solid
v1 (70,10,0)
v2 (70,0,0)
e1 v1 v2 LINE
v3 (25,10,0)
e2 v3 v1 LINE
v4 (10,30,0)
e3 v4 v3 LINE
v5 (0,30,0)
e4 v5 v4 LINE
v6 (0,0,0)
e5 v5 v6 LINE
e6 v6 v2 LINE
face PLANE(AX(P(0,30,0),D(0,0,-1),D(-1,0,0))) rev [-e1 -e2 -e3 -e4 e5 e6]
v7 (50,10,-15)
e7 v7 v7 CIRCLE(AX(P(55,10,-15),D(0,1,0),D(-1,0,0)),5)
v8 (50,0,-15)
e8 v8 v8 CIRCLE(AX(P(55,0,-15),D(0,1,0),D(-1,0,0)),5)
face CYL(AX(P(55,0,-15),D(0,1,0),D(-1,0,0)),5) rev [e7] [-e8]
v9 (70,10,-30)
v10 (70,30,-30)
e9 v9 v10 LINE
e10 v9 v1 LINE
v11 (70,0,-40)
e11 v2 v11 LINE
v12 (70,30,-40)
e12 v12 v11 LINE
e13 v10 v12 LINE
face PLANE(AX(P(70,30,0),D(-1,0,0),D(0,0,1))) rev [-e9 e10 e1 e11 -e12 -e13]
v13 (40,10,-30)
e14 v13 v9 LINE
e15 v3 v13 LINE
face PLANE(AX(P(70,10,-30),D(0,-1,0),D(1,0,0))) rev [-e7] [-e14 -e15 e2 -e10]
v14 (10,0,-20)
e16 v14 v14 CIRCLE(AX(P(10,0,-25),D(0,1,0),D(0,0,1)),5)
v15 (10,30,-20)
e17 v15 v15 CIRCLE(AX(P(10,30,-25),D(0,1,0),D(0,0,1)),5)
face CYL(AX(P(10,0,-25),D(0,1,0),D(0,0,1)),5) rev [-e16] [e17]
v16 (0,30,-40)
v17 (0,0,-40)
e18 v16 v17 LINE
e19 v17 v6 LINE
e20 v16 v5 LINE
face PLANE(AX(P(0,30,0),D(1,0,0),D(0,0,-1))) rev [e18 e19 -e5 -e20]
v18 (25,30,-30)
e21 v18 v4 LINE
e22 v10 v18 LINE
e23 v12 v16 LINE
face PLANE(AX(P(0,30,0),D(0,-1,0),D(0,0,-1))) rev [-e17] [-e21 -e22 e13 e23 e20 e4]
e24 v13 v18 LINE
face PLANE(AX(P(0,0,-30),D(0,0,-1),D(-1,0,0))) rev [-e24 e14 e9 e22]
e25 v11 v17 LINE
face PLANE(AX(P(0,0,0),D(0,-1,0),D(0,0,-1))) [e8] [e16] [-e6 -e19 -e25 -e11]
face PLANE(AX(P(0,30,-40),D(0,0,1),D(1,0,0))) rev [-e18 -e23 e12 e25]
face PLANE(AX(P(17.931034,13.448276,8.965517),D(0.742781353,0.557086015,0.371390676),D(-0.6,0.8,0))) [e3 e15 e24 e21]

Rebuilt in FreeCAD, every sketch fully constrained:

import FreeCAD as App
import Part
import Sketcher
from FreeCAD import Vector


def add_polygon(sketch, points):
    """Adds a closed chain of lines whose ends are joined by coincident constraints."""
    first, n = sketch.GeometryCount, len(points)
    for a, b in zip(points, points[1:] + points[:1]):
        sketch.addGeometry(Part.LineSegment(App.Vector(*a, 0), App.Vector(*b, 0)), False)
    for i in range(n):
        sketch.addConstraint(Sketcher.Constraint("Coincident", first + i, 2, first + (i + 1) % n, 1))

doc = App.newDocument("Part")
params = doc.addObject("Spreadsheet::Sheet", "Params")
for row, (alias, value) in enumerate([
    ("sketch1_width", "70 mm"),
    ("sketch1_height", "40 mm"),
    ("pad1_length", "30 mm"),
    ("sketch2_width", "30 mm"),
    ("sketch2_height", "20 mm"),
    ("pocket1_length", "30 mm"),
    ("sketch3_height", "25 mm"),
    ("pocket2_length", "36 mm"),
    ("sketch4_width", "15 mm"),
    ("sketch4_height", "20 mm"),
    ("pocket3_length", "49 mm"),
    ("sketch5_width", "15 mm"),
    ("sketch5_height", "30 mm"),
    ("pocket4_length", "21 mm"),
    ("sketch6_diameter", "10 mm"),
    ("sketch7_diameter", "10 mm"),
], start=1):
    params.set(f"A{row}", alias)
    params.set(f"B{row}", "=" + value)
    params.setAlias(f"B{row}", alias)

body = doc.addObject("PartDesign::Body", "Body")

# Sketch on XZ plane
sketch1 = body.newObject("Sketcher::SketchObject", "Sketch")
sketch1.AttachmentSupport = (doc.getObject("XZ_Plane"), [""])
sketch1.MapMode = "FlatFace"
add_polygon(sketch1, [(0, -40), (0, 0), (70, 0), (70, -40)])  # lines 0-3
sketch1.addConstraint([
    Sketcher.Constraint("Vertical", 0),
    Sketcher.Constraint("Horizontal", 1),
    Sketcher.Constraint("Vertical", 2),
    Sketcher.Constraint("Horizontal", 3),
    Sketcher.Constraint("Coincident", 0, 2, -1, 1),
    Sketcher.Constraint("DistanceX", 1, 1, 1, 2, 70.0),
    Sketcher.Constraint("DistanceY", 0, 1, 0, 2, 40.0),
])
sketch1.setExpression("Constraints[9]", "Params.sketch1_width")
sketch1.setExpression("Constraints[10]", "Params.sketch1_height")
pad1 = body.newObject("PartDesign::Pad", "Pad")
pad1.Profile = sketch1
pad1.setExpression("Length", "Params.pad1_length")
pad1.Reversed = True

# Sketch on XY plane
sketch2 = body.newObject("Sketcher::SketchObject", "Sketch001")
sketch2.AttachmentSupport = (doc.getObject("XY_Plane"), [""])
sketch2.MapMode = "FlatFace"
add_polygon(sketch2, [(40, 30), (40, 10), (70, 10), (70, 30)])  # lines 0-3
sketch2.addConstraint([
    Sketcher.Constraint("Vertical", 0),
    Sketcher.Constraint("Horizontal", 1),
    Sketcher.Constraint("Vertical", 2),
    Sketcher.Constraint("Horizontal", 3),
    Sketcher.Constraint("DistanceX", 1, 1, 1, 2, 30.0),
    Sketcher.Constraint("DistanceY", 0, 2, 0, 1, 20.0),
    Sketcher.Constraint("DistanceX", -1, 1, 0, 2, 40.0),
    Sketcher.Constraint("DistanceY", -1, 1, 0, 2, 10.0),
])
sketch2.setExpression("Constraints[8]", "Params.sketch2_width")
sketch2.setExpression("Constraints[9]", "Params.sketch2_height")
pocket1 = body.newObject("PartDesign::Pocket", "Pocket")
pocket1.Profile = sketch2
pocket1.setExpression("Length", "Params.pocket1_length")

# Sketch on an angled plane
sketch3 = body.newObject("Sketcher::SketchObject", "Sketch002")
sketch3.Placement = App.Placement(Vector(17.931034, 13.448276, 8.965517), App.Rotation(Vector(0.297112541, 0.222834406, -0.928476691), Vector(-0.6, 0.8, 0), Vector(0.742781353, 0.557086015, 0.371390676), "ZXY"))
add_polygon(sketch3, [(9.656158, 18), (9.656158, -7), (41.967146, -16), (41.967146, 9)])  # lines 0-3
sketch3.addConstraint([
    Sketcher.Constraint("Vertical", 0),
    Sketcher.Constraint("Vertical", 2),
    Sketcher.Constraint("Parallel", 1, 3),
    Sketcher.Constraint("DistanceY", 0, 2, 0, 1, 25.0),
    Sketcher.Constraint("DistanceY", 0, 2, -1, 1, 7.0),
    Sketcher.Constraint("DistanceY", 1, 2, -1, 1, 16.0),
    Sketcher.Constraint("Distance", 1, 33.54102),
    Sketcher.Constraint("DistanceX", -1, 1, 0, 2, 9.656158),
])
sketch3.setExpression("Constraints[7]", "Params.sketch3_height")
pocket2 = body.newObject("PartDesign::Pocket", "Pocket001")
pocket2.Profile = sketch3
pocket2.setExpression("Length", "Params.pocket2_length")
pocket2.Reversed = True

# Sketch on XY plane
sketch4 = body.newObject("Sketcher::SketchObject", "Sketch003")
sketch4.AttachmentSupport = (doc.getObject("XY_Plane"), [""])
sketch4.MapMode = "FlatFace"
sketch4.AttachmentOffset = App.Placement(Vector(0, 0, -30), App.Rotation())
add_polygon(sketch4, [(25, 30), (40, 10), (40, 30)])  # lines 0-2
sketch4.addConstraint([
    Sketcher.Constraint("Vertical", 1),
    Sketcher.Constraint("Horizontal", 2),
    Sketcher.Constraint("DistanceX", 2, 2, 2, 1, 15.0),
    Sketcher.Constraint("DistanceY", 1, 1, 1, 2, 20.0),
    Sketcher.Constraint("DistanceX", -1, 1, 0, 2, 40.0),
    Sketcher.Constraint("DistanceY", -1, 1, 0, 2, 10.0),
])
sketch4.setExpression("Constraints[5]", "Params.sketch4_width")
sketch4.setExpression("Constraints[6]", "Params.sketch4_height")
pocket3 = body.newObject("PartDesign::Pocket", "Pocket002")
pocket3.Profile = sketch4
pocket3.setExpression("Length", "Params.pocket3_length")
pocket3.Reversed = True

# Sketch on XZ plane
sketch5 = body.newObject("Sketcher::SketchObject", "Sketch004")
sketch5.AttachmentSupport = (doc.getObject("XZ_Plane"), [""])
sketch5.MapMode = "FlatFace"
sketch5.AttachmentOffset = App.Placement(Vector(0, 0, -10), App.Rotation())
add_polygon(sketch5, [(25, 0), (40, 0), (40, -30)])  # lines 0-2
sketch5.addConstraint([
    Sketcher.Constraint("Horizontal", 0),
    Sketcher.Constraint("Vertical", 1),
    Sketcher.Constraint("PointOnObject", 0, 2, -1),
    Sketcher.Constraint("DistanceX", 0, 1, 0, 2, 15.0),
    Sketcher.Constraint("DistanceY", 1, 2, 1, 1, 30.0),
    Sketcher.Constraint("DistanceX", -1, 1, 0, 2, 40.0),
])
sketch5.setExpression("Constraints[6]", "Params.sketch5_width")
sketch5.setExpression("Constraints[7]", "Params.sketch5_height")
pocket4 = body.newObject("PartDesign::Pocket", "Pocket003")
pocket4.Profile = sketch5
pocket4.setExpression("Length", "Params.pocket4_length")

# Sketch on XZ plane
sketch6 = body.newObject("Sketcher::SketchObject", "Sketch005")
sketch6.AttachmentSupport = (doc.getObject("XZ_Plane"), [""])
sketch6.MapMode = "FlatFace"
sketch6.AttachmentOffset = App.Placement(Vector(0, 0, -10), App.Rotation())
sketch6.addGeometry(Part.Circle(Vector(55, -15, 0), Vector(0, 0, 1), 5), False)
sketch6.addConstraint([
    Sketcher.Constraint("Diameter", 0, 10.0),
    Sketcher.Constraint("DistanceX", -1, 1, 0, 3, 55.0),
    Sketcher.Constraint("DistanceY", 0, 3, -1, 1, 15.0),
])
sketch6.setExpression("Constraints[0]", "Params.sketch6_diameter")
pocket5 = body.newObject("PartDesign::Pocket", "Pocket004")
pocket5.Profile = sketch6
pocket5.Type = "ThroughAll"
pocket5.Reversed = True

# Sketch on XZ plane
sketch7 = body.newObject("Sketcher::SketchObject", "Sketch006")
sketch7.AttachmentSupport = (doc.getObject("XZ_Plane"), [""])
sketch7.MapMode = "FlatFace"
sketch7.AttachmentOffset = App.Placement(Vector(0, 0, -30), App.Rotation())
sketch7.addGeometry(Part.Circle(Vector(10, -25, 0), Vector(0, 0, 1), 5), False)
sketch7.addConstraint([
    Sketcher.Constraint("Diameter", 0, 10.0),
    Sketcher.Constraint("DistanceX", -1, 1, 0, 3, 10.0),
    Sketcher.Constraint("DistanceY", 0, 3, -1, 1, 25.0),
])
sketch7.setExpression("Constraints[0]", "Params.sketch7_diameter")
pocket6 = body.newObject("PartDesign::Pocket", "Pocket005")
pocket6.Profile = sketch7
pocket6.Type = "ThroughAll"
pocket6.Reversed = True

doc.recompute()
